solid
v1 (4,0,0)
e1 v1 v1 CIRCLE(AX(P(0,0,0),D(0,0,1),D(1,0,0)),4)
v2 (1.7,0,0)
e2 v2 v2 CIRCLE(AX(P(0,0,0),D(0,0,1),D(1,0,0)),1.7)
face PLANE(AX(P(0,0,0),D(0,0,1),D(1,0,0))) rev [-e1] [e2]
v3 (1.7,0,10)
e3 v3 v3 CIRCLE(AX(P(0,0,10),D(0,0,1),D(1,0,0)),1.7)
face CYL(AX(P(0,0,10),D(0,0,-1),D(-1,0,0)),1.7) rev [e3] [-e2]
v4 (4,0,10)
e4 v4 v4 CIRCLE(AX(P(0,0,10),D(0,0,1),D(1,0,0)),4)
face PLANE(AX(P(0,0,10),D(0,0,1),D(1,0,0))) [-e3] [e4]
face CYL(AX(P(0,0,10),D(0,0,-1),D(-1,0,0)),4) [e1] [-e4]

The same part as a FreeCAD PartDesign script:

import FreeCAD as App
import Part
import Sketcher
from FreeCAD import Vector

doc = App.newDocument("Part")
body = doc.addObject("PartDesign::Body", "Body")

sketch1 = body.newObject("Sketcher::SketchObject", "Sketch")
sketch1.AttachmentSupport = (doc.getObject("XY_Plane"), [""])
sketch1.MapMode = "FlatFace"
sketch1.addGeometry(Part.Circle(Vector(0, 0, 0), Vector(0, 0, 1), 4), False)
sketch1.addGeometry(Part.Circle(Vector(0, 0, 0), Vector(0, 0, 1), 1.7), False)
sketch1.addConstraint(Sketcher.Constraint("Coincident", 0, 3, -1, 1))
sketch1.addConstraint(Sketcher.Constraint("Coincident", 1, 3, -1, 1))
sketch1.addConstraint(Sketcher.Constraint("Diameter", 0, 8.0))
sketch1.addConstraint(Sketcher.Constraint("Diameter", 1, 3.4))
pad1 = body.newObject("PartDesign::Pad", "Pad")
pad1.Profile = sketch1
pad1.Length = 10

doc.recompute()
